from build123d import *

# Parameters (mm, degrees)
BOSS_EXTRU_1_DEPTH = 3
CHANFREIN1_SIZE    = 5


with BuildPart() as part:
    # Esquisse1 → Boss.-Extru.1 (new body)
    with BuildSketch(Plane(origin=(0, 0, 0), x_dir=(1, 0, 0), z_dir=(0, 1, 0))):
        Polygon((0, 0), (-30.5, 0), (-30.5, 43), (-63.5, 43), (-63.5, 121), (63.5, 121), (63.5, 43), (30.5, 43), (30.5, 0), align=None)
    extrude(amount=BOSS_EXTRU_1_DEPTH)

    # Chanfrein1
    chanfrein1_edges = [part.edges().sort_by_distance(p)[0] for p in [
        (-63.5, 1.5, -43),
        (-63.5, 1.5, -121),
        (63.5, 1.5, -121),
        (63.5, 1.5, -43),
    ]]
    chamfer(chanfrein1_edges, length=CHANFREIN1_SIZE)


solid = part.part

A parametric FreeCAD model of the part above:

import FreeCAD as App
import Part
import Sketcher


def edges_at(feature, points):
    """Names of the edges that pass closest to the given points."""
    edges = feature.Shape.Edges
    near = lambda p: min(range(len(edges)), key=lambda i: edges[i].distToShape(Part.Vertex(*p))[0])
    return sorted({f"Edge{near(p) + 1}" for p in points})


def add_polygon(sketch, points):
    """Adds a closed chain of lines whose ends are joined by coincident constraints."""
    first, n = sketch.GeometryCount, len(points)
    for a, b in zip(points, points[1:] + points[:1]):
        sketch.addGeometry(Part.LineSegment(App.Vector(*a, 0), App.Vector(*b, 0)), False)
    for i in range(n):
        sketch.addConstraint(Sketcher.Constraint("Coincident", first + i, 2, first + (i + 1) % n, 1))

doc = App.newDocument("Part")
params = doc.addObject("Spreadsheet::Sheet", "Params")
for row, (alias, value) in enumerate([
    ("sketch1_width", "61 mm"),
    ("sketch1_width2", "33 mm"),
    ("sketch1_height", "43 mm"),
    ("sketch1_height2", "78 mm"),
    ("pad1_length", "3 mm"),
    ("chamfer_size", "5 mm"),
], start=1):
    params.set(f"A{row}", alias)
    params.set(f"B{row}", "=" + value)
    params.setAlias(f"B{row}", alias)

body = doc.addObject("PartDesign::Body", "Body")

# Sketch on XZ plane
sketch1 = doc.addObject("Sketcher::SketchObject", "Sketch")
body.addObject(sketch1)
sketch1.AttachmentSupport = (doc.XZ_Plane, [""])
sketch1.MapMode = "FlatFace"
add_polygon(sketch1, [(-30, 0), (30, 0), (30, -43), (64, -43), (64, -121), (-64, -121), (-64, -43), (-30, -43)])  # lines 0-7
sketch1.addConstraint([
    Sketcher.Constraint("Horizontal", 0),
    Sketcher.Constraint("Vertical", 1),
    Sketcher.Constraint("Horizontal", 2),
    Sketcher.Constraint("Vertical", 3),
    Sketcher.Constraint("Horizontal", 4),
    Sketcher.Constraint("Vertical", 5),
    Sketcher.Constraint("Horizontal", 6),
    Sketcher.Constraint("Vertical", 7),
    Sketcher.Constraint("Symmetric", 0, 2, 7, 2, -1, 1),
    Sketcher.Constraint("Symmetric", 2, 2, 5, 2, -2),
    Sketcher.Constraint("DistanceX", 0, 1, 0, 2, 61.0),
    Sketcher.Constraint("DistanceX", 2, 1, 2, 2, 33.0),
    Sketcher.Constraint("DistanceY", 1, 2, 1, 1, 43.0),
    Sketcher.Constraint("DistanceY", 3, 2, 3, 1, 78.0),
])
sketch1.setExpression("Constraints[18]", "Params.sketch1_width")
sketch1.setExpression("Constraints[19]", "Params.sketch1_width2")
sketch1.setExpression("Constraints[20]", "Params.sketch1_height")
sketch1.setExpression("Constraints[21]", "Params.sketch1_height2")
pad1 = doc.addObject("PartDesign::Pad", "Pad")
body.addObject(pad1)
pad1.Profile = sketch1
pad1.setExpression("Length", "Params.pad1_length")
pad1.Reversed = True
doc.recompute()

chamfer = doc.addObject("PartDesign::Chamfer", "Chamfer")
body.addObject(chamfer)
chamfer.Base = (pad1, edges_at(pad1, [
    (-63.5, 1.5, -43),
    (-63.5, 1.5, -121),
    (63.5, 1.5, -121),
    (63.5, 1.5, -43),
]))
chamfer.setExpression("Size", "Params.chamfer_size")

doc.recompute()
